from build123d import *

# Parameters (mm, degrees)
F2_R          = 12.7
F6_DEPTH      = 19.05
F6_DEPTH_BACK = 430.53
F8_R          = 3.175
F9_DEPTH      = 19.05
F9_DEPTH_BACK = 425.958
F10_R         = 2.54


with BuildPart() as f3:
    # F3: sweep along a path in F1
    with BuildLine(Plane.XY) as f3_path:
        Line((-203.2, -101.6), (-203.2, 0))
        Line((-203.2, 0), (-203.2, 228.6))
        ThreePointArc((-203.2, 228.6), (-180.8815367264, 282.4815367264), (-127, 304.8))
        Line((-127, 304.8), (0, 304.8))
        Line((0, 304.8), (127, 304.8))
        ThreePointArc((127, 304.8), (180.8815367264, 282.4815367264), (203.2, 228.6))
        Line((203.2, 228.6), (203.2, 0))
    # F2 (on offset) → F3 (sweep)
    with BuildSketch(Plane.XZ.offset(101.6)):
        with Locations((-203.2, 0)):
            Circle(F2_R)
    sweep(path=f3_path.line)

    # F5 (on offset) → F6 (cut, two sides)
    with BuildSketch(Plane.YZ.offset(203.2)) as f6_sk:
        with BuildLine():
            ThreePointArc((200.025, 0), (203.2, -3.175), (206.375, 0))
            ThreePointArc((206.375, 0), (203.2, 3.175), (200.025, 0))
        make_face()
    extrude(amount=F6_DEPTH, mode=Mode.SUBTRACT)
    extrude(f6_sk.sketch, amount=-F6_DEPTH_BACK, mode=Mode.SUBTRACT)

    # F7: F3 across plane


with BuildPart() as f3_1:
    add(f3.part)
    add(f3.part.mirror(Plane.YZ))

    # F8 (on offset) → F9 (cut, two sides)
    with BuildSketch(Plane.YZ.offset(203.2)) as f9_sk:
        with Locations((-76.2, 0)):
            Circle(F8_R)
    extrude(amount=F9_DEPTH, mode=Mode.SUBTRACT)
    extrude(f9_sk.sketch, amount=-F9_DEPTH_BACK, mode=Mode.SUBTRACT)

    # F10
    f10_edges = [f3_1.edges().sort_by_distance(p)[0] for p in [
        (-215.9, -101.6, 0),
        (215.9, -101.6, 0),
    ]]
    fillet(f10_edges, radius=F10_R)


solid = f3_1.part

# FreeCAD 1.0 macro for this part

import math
import FreeCAD as App
import Part
import Sketcher
Q = App.Units.Quantity


def edges_at(feature, points):
    """Names of the edges that pass closest to the given points."""
    edges = feature.Shape.Edges
    near = lambda p: min(range(len(edges)), key=lambda i: edges[i].distToShape(Part.Vertex(*p))[0])
    return sorted({f"Edge{near(p) + 1}" for p in points})

doc = App.newDocument("Part")
body = doc.addObject("PartDesign::Body", "Body")

sketch1 = body.newObject("Sketcher::SketchObject", "Sketch")
sketch1.AttachmentSupport = (doc.getObject("XZ_Plane"), [""])
sketch1.MapMode = "FlatFace"
sketch1.AttachmentOffset = App.Placement(App.Vector(0, 0, 4 * 25.4), App.Rotation())
sketch1.addGeometry(Part.Circle(App.Vector(-203, 0, 0), App.Vector(0, 0, 1), 13), False)
sketch1.addConstraint([
    Sketcher.Constraint("PointOnObject", 0, 3, -1),
    Sketcher.Constraint("Diameter", 0, Q("1 in")),
    Sketcher.Constraint("DistanceX", 0, 3, -1, 1, Q("8 in")),
])

sketch2 = body.newObject("Sketcher::SketchObject", "Sketch001")
sketch2.AttachmentSupport = (doc.getObject("XY_Plane"), [""])
sketch2.MapMode = "FlatFace"
sketch2.addGeometry([
    Part.LineSegment(App.Vector(-203, -102, 0), App.Vector(-203, 229, 0)),
    Part.ArcOfCircle(Part.Circle(App.Vector(-127, 229, 0), App.Vector(0, 0, 1), 76), math.radians(90), math.radians(180)),
    Part.LineSegment(App.Vector(-127, 305, 0), App.Vector(127, 305, 0)),
    Part.ArcOfCircle(Part.Circle(App.Vector(127, 229, 0), App.Vector(0, 0, 1), 76), math.radians(0), math.radians(90)),
    Part.LineSegment(App.Vector(203, 229, 0), App.Vector(203, 0, 0)),
], False)
sketch2.addConstraint([
    Sketcher.Constraint("Tangent", 0, 2, 1, 2),
    Sketcher.Constraint("Tangent", 1, 1, 2, 1),
    Sketcher.Constraint("Tangent", 2, 2, 3, 2),
    Sketcher.Constraint("Tangent", 3, 1, 4, 1),
    Sketcher.Constraint("Vertical", 0),
    Sketcher.Constraint("Horizontal", 2),
    Sketcher.Constraint("Vertical", 4),
    Sketcher.Constraint("Equal", 1, 3),
    Sketcher.Constraint("PointOnObject", 4, 2, -1),
    Sketcher.Constraint("Radius", 1, Q("3 in")),
    Sketcher.Constraint("DistanceX", 2, 1, 2, 2, Q("10 in")),
    Sketcher.Constraint("DistanceY", 0, 1, 0, 2, Q("13 in")),
    Sketcher.Constraint("DistanceY", 4, 2, 4, 1, Q("9 in")),
    Sketcher.Constraint("DistanceX", 1, 3, -1, 1, Q("5 in")),
])
doc.recompute()

additivepipe = body.newObject("PartDesign::AdditivePipe", "AdditivePipe")
additivepipe.Profile = sketch1
additivepipe.Spine = (sketch2, ["Edge1", "Edge2", "Edge3", "Edge4", "Edge5"])

sketch3 = body.newObject("Sketcher::SketchObject", "Sketch002")
sketch3.AttachmentSupport = (doc.getObject("YZ_Plane"), [""])
sketch3.MapMode = "FlatFace"
sketch3.AttachmentOffset = App.Placement(App.Vector(0, 0, 8 * 25.4), App.Rotation())
sketch3.addGeometry(Part.Circle(App.Vector(203.2, 0, 0), App.Vector(0, 0, 1), 3.2), False)
sketch3.addConstraint([
    Sketcher.Constraint("PointOnObject", 0, 3, -1),
    Sketcher.Constraint("Diameter", 0, Q("0.25 in")),
    Sketcher.Constraint("DistanceX", -1, 1, 0, 3, Q("8 in")),
])
pocket1 = body.newObject("PartDesign::Pocket", "Pocket")
pocket1.Profile = sketch3
pocket1.Type = "ThroughAll"
pocket1.Midplane = True
body2 = doc.addObject("PartDesign::Body", "Body001")
doc.recompute()

body2.BaseFeature = body
doc.recompute()

mirroring = doc.addObject("Part::Mirroring", "Mirroring")
mirroring.Source = body
mirroring.Base = App.Vector(0, 0, 0)
mirroring.Normal = App.Vector(1, 0, 0)
body3 = doc.addObject("PartDesign::Body", "Body002")
body3.BaseFeature = mirroring
boolean = body2.newObject("PartDesign::Boolean", "Boolean")
boolean.Type = "Fuse"
boolean.addObjects([body3])
doc.recompute()

sketch4 = body2.newObject("Sketcher::SketchObject", "Sketch003")
sketch4.AttachmentSupport = (doc.getObject("YZ_Plane001"), [""])
sketch4.MapMode = "FlatFace"
sketch4.AttachmentOffset = App.Placement(App.Vector(0, 0, 8 * 25.4), App.Rotation())
sketch4.addGeometry(Part.Circle(App.Vector(-76.2, 0, 0), App.Vector(0, 0, 1), 3.2), False)
sketch4.addConstraint([
    Sketcher.Constraint("PointOnObject", 0, 3, -1),
    Sketcher.Constraint("Diameter", 0, Q("0.25 in")),
    Sketcher.Constraint("DistanceX", 0, 3, -1, 1, Q("3 in")),
])
pocket2 = body2.newObject("PartDesign::Pocket", "Pocket001")
pocket2.Profile = sketch4
pocket2.Type = "ThroughAll"
pocket2.Midplane = True
doc.recompute()

fillet = body2.newObject("PartDesign::Fillet", "Fillet")
fillet.Base = (pocket2, edges_at(pocket2, [(-215.9, -101.6, 0), (215.9, -101.6, 0)]))
fillet.Radius = Q("0.1 in")
mirroring.Visibility = False

doc.recompute()
